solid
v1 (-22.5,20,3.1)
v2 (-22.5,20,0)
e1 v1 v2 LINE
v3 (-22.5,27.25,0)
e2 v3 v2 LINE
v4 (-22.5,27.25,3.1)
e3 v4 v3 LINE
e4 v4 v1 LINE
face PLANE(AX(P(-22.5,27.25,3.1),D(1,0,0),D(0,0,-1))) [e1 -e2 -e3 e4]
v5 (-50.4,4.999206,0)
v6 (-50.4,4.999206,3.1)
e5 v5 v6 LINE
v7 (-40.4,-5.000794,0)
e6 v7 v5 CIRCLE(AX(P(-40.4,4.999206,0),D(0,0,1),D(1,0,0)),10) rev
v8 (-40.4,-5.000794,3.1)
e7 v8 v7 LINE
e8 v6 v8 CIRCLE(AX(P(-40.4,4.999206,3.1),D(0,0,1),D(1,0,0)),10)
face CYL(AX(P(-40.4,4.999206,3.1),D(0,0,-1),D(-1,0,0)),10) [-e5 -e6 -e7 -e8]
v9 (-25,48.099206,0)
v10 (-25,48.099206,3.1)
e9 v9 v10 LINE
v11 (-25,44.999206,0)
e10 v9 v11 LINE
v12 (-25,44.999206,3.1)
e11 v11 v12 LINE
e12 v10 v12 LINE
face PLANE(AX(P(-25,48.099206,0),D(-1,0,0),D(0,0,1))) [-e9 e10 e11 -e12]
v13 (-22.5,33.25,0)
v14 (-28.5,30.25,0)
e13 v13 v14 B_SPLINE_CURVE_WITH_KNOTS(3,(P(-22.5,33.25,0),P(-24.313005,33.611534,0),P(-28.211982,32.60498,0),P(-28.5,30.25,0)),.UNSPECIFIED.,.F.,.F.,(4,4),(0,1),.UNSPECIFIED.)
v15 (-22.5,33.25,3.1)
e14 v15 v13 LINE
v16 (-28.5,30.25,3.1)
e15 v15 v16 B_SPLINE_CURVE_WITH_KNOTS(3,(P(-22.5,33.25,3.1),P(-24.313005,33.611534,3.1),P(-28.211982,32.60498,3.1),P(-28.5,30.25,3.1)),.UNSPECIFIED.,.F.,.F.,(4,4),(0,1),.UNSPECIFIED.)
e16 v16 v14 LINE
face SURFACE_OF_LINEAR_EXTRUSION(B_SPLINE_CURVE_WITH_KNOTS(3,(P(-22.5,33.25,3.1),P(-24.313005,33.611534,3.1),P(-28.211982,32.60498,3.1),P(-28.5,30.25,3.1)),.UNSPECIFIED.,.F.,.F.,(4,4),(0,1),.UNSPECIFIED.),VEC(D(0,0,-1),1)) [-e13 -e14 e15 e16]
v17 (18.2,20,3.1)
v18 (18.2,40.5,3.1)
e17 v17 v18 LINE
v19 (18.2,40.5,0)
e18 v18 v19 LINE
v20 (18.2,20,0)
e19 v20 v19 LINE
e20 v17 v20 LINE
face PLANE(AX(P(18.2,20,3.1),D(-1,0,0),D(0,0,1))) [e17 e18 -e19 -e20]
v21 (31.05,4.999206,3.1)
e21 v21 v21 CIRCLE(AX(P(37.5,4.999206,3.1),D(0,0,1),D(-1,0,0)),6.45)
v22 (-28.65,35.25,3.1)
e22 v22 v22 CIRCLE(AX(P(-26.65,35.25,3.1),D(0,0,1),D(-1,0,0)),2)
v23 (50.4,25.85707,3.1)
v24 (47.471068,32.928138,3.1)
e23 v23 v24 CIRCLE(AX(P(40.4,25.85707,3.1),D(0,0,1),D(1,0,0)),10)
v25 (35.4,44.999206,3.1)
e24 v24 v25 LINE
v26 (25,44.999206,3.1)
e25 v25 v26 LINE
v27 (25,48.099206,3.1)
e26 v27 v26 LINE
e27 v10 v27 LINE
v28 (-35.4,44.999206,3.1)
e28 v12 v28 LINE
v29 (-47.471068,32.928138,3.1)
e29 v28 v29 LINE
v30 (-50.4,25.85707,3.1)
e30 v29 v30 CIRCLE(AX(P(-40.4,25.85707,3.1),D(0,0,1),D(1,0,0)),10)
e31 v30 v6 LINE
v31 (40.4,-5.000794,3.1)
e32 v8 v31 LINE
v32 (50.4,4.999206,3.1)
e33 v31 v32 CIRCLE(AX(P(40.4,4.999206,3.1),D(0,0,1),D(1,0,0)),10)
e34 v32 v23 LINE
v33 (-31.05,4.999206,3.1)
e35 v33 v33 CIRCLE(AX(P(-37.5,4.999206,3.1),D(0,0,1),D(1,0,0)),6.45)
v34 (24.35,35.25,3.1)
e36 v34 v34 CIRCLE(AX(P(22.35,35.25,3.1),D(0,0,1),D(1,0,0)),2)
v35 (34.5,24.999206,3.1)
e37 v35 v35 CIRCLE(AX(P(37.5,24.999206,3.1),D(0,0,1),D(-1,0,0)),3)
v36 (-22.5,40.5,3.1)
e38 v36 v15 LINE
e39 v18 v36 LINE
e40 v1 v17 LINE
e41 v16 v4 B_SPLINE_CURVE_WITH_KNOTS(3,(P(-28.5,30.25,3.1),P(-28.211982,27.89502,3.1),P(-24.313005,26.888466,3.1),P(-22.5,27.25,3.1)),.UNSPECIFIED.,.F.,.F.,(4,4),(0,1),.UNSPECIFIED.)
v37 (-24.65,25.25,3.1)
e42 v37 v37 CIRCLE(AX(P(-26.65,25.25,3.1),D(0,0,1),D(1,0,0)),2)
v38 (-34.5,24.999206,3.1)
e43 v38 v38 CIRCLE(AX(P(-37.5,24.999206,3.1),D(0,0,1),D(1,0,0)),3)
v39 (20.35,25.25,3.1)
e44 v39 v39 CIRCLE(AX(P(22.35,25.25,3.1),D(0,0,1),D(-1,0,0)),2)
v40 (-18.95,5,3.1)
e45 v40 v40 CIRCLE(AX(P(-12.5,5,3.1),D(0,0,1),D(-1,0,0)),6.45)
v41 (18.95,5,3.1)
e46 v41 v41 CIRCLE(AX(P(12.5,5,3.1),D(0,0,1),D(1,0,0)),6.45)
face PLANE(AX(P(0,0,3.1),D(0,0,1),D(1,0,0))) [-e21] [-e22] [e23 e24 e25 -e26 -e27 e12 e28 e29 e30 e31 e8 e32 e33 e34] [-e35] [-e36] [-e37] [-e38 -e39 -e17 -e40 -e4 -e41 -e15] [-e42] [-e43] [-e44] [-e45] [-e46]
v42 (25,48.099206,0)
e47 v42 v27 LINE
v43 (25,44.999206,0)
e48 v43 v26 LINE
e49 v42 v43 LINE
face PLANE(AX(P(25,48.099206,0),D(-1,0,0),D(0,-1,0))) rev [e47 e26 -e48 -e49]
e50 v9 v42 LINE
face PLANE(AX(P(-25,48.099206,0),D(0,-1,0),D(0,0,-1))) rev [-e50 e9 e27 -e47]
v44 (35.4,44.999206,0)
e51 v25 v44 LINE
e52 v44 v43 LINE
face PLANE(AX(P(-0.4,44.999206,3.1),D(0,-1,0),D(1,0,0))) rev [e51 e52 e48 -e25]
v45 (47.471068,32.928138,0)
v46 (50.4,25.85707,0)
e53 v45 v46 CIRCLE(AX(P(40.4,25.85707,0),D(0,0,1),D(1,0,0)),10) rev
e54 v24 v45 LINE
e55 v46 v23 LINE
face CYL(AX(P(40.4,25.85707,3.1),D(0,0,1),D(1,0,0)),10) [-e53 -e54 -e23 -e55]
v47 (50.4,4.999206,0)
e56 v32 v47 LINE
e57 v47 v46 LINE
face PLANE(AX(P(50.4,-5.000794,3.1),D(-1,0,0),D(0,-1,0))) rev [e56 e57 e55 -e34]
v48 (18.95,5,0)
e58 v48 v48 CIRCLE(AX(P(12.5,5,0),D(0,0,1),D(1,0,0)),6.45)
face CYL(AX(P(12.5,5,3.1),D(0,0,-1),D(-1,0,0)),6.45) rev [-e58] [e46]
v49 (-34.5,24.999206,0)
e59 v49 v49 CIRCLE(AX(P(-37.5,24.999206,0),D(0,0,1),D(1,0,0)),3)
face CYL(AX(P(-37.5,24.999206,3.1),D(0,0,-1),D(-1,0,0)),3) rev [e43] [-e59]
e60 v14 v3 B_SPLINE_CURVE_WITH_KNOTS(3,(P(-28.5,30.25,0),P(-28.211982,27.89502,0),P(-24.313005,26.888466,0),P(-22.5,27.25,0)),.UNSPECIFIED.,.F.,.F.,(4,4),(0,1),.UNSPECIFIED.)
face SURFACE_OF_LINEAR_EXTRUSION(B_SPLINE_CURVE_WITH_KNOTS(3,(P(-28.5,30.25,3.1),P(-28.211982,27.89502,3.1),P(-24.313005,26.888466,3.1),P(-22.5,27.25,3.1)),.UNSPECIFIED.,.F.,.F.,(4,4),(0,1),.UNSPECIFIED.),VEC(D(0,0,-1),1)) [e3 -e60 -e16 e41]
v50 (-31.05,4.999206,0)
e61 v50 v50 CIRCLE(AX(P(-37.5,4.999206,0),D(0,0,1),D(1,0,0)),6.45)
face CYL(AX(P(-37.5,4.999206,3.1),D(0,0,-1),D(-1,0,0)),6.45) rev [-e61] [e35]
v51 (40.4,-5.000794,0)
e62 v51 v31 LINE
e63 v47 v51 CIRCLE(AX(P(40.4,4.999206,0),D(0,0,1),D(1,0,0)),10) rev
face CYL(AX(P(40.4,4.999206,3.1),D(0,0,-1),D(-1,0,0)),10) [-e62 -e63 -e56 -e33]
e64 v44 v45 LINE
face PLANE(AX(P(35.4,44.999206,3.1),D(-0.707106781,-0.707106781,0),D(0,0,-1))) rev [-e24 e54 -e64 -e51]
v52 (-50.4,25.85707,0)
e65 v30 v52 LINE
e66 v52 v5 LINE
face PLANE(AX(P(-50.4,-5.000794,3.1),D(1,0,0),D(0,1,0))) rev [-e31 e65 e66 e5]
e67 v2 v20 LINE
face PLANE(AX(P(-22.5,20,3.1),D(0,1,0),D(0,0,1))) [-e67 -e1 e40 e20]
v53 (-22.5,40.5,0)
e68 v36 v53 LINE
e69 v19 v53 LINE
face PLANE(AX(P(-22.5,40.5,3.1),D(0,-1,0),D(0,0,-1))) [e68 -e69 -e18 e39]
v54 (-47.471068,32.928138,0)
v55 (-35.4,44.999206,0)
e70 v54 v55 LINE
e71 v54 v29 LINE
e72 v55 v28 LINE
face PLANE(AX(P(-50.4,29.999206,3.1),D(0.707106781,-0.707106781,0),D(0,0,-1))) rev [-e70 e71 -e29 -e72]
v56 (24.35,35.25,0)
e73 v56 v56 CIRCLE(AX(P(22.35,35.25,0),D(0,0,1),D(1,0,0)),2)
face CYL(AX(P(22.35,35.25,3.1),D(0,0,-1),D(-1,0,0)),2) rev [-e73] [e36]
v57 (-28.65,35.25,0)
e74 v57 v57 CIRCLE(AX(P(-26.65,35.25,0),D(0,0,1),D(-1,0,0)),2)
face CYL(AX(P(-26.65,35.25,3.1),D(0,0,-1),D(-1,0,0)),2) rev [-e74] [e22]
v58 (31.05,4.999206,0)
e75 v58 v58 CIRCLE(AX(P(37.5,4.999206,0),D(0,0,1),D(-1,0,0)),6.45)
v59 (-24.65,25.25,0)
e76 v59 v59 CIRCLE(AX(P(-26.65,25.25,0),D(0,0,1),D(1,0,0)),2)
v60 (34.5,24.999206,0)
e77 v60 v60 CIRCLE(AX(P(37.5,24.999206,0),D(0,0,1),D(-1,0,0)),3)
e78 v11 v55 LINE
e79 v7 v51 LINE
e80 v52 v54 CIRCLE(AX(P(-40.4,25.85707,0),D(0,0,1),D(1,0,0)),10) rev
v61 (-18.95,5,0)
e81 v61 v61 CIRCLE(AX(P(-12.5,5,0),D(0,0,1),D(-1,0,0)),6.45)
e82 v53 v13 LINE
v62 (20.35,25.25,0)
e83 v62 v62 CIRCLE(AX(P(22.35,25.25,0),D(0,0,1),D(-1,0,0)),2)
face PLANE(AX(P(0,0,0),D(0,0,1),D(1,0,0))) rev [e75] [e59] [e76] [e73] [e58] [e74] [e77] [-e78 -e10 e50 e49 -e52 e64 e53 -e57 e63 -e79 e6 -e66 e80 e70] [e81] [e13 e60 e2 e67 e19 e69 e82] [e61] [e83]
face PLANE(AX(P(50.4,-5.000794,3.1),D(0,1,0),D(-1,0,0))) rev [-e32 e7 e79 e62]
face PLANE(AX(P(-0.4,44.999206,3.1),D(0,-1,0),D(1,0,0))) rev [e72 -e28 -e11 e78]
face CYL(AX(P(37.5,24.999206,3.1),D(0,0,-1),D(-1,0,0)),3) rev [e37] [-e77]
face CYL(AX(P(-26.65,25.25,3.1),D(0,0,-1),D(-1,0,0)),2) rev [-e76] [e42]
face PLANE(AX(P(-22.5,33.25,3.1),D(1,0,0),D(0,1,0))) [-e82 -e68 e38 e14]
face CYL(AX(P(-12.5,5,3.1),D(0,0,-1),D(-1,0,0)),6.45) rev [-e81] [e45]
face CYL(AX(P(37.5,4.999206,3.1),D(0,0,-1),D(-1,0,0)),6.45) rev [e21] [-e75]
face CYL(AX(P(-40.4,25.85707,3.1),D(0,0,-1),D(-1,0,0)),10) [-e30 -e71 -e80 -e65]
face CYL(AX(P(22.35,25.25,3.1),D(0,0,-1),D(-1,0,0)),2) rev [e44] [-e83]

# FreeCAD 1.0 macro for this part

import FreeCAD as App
import Part
import Sketcher
from FreeCAD import Vector


def edges_at(feature, points):
    """Names of the edges that pass closest to the given points."""
    edges = feature.Shape.Edges
    near = lambda p: min(range(len(edges)), key=lambda i: edges[i].distToShape(Part.Vertex(*p))[0])
    return sorted({f"Edge{near(p) + 1}" for p in points})


def add_polygon(sketch, points):
    """Adds a closed chain of lines whose ends are joined by coincident constraints."""
    first, n = sketch.GeometryCount, len(points)
    for a, b in zip(points, points[1:] + points[:1]):
        sketch.addGeometry(Part.LineSegment(App.Vector(*a, 0), App.Vector(*b, 0)), False)
    for i in range(n):
        sketch.addConstraint(Sketcher.Constraint("Coincident", first + i, 2, first + (i + 1) % n, 1))

doc = App.newDocument("Part")
body = doc.addObject("PartDesign::Body", "Body")

sketch1 = doc.addObject("Sketcher::SketchObject", "Sketch")
body.addObject(sketch1)
sketch1.AttachmentSupport = (doc.XY_Plane, [""])
sketch1.MapMode = "FlatFace"
add_polygon(sketch1, [(-50, -5), (50, -5), (50, 45), (-50, 45)])
sketch1.addGeometry(Part.Circle(Vector(37, 5, 0), Vector(0, 0, 1), 6), False)
sketch1.addGeometry(Part.Circle(Vector(-37, 5, 0), Vector(0, 0, 1), 6), False)
sketch1.addGeometry(Part.Circle(Vector(12, 5, 0), Vector(0, 0, 1), 6), False)
sketch1.addGeometry(Part.Circle(Vector(-12, 5, 0), Vector(0, 0, 1), 6), False)
sketch1.addConstraint(Sketcher.Constraint("Horizontal", 0))
sketch1.addConstraint(Sketcher.Constraint("Vertical", 1))
sketch1.addConstraint(Sketcher.Constraint("Horizontal", 2))
sketch1.addConstraint(Sketcher.Constraint("Vertical", 3))
sketch1.addConstraint(Sketcher.Constraint("Equal", 4, 5))
sketch1.addConstraint(Sketcher.Constraint("Equal", 5, 6))
sketch1.addConstraint(Sketcher.Constraint("Equal", 6, 7))
sketch1.addConstraint(Sketcher.Constraint("Symmetric", 4, 3, 5, 3, -2))
sketch1.addConstraint(Sketcher.Constraint("Symmetric", 6, 3, 7, 3, -2))
sketch1.addConstraint(Sketcher.Constraint("Diameter", 4, 12.9))
sketch1.addConstraint(Sketcher.Constraint("DistanceY", 1, 1, 1, 2, 50.0))
sketch1.addConstraint(Sketcher.Constraint("DistanceX", 0, 1, 0, 2, 100.8))
sketch1.addConstraint(Sketcher.Constraint("DistanceY", -1, 1, 6, 3, 5.0))
sketch1.addConstraint(Sketcher.Constraint("DistanceX", 5, 3, 4, 3, 75.0))
sketch1.addConstraint(Sketcher.Constraint("DistanceX", 6, 3, 4, 3, 25.0))
sketch1.addConstraint(Sketcher.Constraint("DistanceY", 0, 2, 4, 3, 10.0))
sketch1.addConstraint(Sketcher.Constraint("DistanceX", -1, 1, 0, 2, 50.4))
sketch1.addConstraint(Sketcher.Constraint("DistanceY", -1, 1, 4, 3, 4.999206))
pad1 = doc.addObject("PartDesign::Pad", "Pad")
body.addObject(pad1)
pad1.Profile = sketch1
pad1.Length = 3.1

sketch2 = doc.addObject("Sketcher::SketchObject", "Sketch001")
body.addObject(sketch2)
sketch2.AttachmentSupport = (doc.XY_Plane, [""])
sketch2.MapMode = "FlatFace"
sketch2.addGeometry(Part.Circle(Vector(22.35, 35.25, 0), Vector(0, 0, 1), 2), False)
sketch2.addGeometry(Part.Circle(Vector(22.35, 25.25, 0), Vector(0, 0, 1), 2), False)
sketch2.addGeometry(Part.Circle(Vector(-26.65, 25.25, 0), Vector(0, 0, 1), 2), False)
sketch2.addGeometry(Part.Circle(Vector(-26.65, 35.25, 0), Vector(0, 0, 1), 2), False)
sketch2.addGeometry(Part.Circle(Vector(37.5, 24.999206, 0), Vector(0, 0, 1), 3), False)
sketch2.addGeometry(Part.Circle(Vector(-37.5, 24.999206, 0), Vector(0, 0, 1), 3), False)
sketch2.addGeometry(Part.LineSegment(Vector(-22.5, 20, 0), Vector(18.2, 20, 0)), False)
sketch2.addGeometry(Part.LineSegment(Vector(18.2, 20, 0), Vector(18.2, 40.5, 0)), False)
sketch2.addGeometry(Part.LineSegment(Vector(18.2, 40.5, 0), Vector(-22.5, 40.5, 0)), False)
sketch2.addGeometry(Part.LineSegment(Vector(-22.5, 40.5, 0), Vector(-22.5, 33.25, 0)), False)
sketch2.addGeometry(Part.BSplineCurve([Vector(-28.5, 30.25, 0), Vector(-28.211982, 32.60498, 0), Vector(-24.313005, 33.611534, 0), Vector(-22.5, 33.25, 0)], [4, 4], [0, 1], False, 3, [1, 1, 1, 1], False), False)
sketch2.addGeometry(Part.BSplineCurve([Vector(-28.5, 30.25, 0), Vector(-28.211982, 27.89502, 0), Vector(-24.313005, 26.888466, 0), Vector(-22.5, 27.25, 0)], [4, 4], [0, 1], False, 3, [1, 1, 1, 1], False), False)
sketch2.addGeometry(Part.LineSegment(Vector(-22.5, 27.25, 0), Vector(-22.5, 20, 0)), False)
sketch2.addConstraint(Sketcher.Constraint("Block", 10))
sketch2.addConstraint(Sketcher.Constraint("Block", 11))
sketch2.addConstraint(Sketcher.Constraint("Coincident", 6, 2, 7, 1))
sketch2.addConstraint(Sketcher.Constraint("Coincident", 7, 2, 8, 1))
sketch2.addConstraint(Sketcher.Constraint("Coincident", 8, 2, 9, 1))
sketch2.addConstraint(Sketcher.Constraint("Coincident", 9, 2, 10, 2))
sketch2.addConstraint(Sketcher.Constraint("Coincident", 11, 2, 12, 1))
sketch2.addConstraint(Sketcher.Constraint("Coincident", 12, 2, 6, 1))
sketch2.addConstraint(Sketcher.Constraint("Horizontal", 6))
sketch2.addConstraint(Sketcher.Constraint("Vertical", 7))
sketch2.addConstraint(Sketcher.Constraint("Horizontal", 8))
sketch2.addConstraint(Sketcher.Constraint("Vertical", 9))
sketch2.addConstraint(Sketcher.Constraint("Vertical", 12))
sketch2.addConstraint(Sketcher.Constraint("Equal", 0, 1))
sketch2.addConstraint(Sketcher.Constraint("Equal", 1, 2))
sketch2.addConstraint(Sketcher.Constraint("Equal", 2, 3))
sketch2.addConstraint(Sketcher.Constraint("Equal", 4, 5))
sketch2.addConstraint(Sketcher.Constraint("Symmetric", 4, 3, 5, 3, -2))
sketch2.addConstraint(Sketcher.Constraint("Horizontal", 1, 3, 2, 3))
sketch2.addConstraint(Sketcher.Constraint("Horizontal", 0, 3, 3, 3))
sketch2.addConstraint(Sketcher.Constraint("Vertical", 0, 3, 1, 3))
sketch2.addConstraint(Sketcher.Constraint("Vertical", 2, 3, 3, 3))
sketch2.addConstraint(Sketcher.Constraint("Equal", 9, 12))
sketch2.addConstraint(Sketcher.Constraint("Diameter", 0, 4.0))
sketch2.addConstraint(Sketcher.Constraint("Diameter", 4, 6.0))
sketch2.addConstraint(Sketcher.Constraint("DistanceX", 6, 1, 6, 2, 40.7))
sketch2.addConstraint(Sketcher.Constraint("DistanceY", 7, 1, 7, 2, 20.5))
sketch2.addConstraint(Sketcher.Constraint("DistanceY", 1, 3, 0, 3, 10.0))
sketch2.addConstraint(Sketcher.Constraint("DistanceX", 2, 3, 1, 3, 49.0))
sketch2.addConstraint(Sketcher.Constraint("DistanceX", 5, 3, 4, 3, 75.0))
sketch2.addConstraint(Sketcher.Constraint("DistanceY", 9, 2, 3, 3, 2.0))
sketch2.addConstraint(Sketcher.Constraint("DistanceX", -1, 1, 0, 3, 22.35))
sketch2.addConstraint(Sketcher.Constraint("DistanceY", -1, 1, 4, 3, 24.999206))
pocket1 = doc.addObject("PartDesign::Pocket", "Pocket")
body.addObject(pocket1)
pocket1.Profile = sketch2
pocket1.Type = "ThroughAll"
pocket1.Reversed = True
doc.recompute()

fillet = doc.addObject("PartDesign::Fillet", "Fillet")
body.addObject(fillet)
fillet.Base = (pocket1, edges_at(pocket1, [(50.4, -5.001, 1.55), (-50.4, -5.001, 1.55)]))
fillet.Radius = 10

sketch3 = doc.addObject("Sketcher::SketchObject", "Sketch002")
body.addObject(sketch3)
sketch3.AttachmentSupport = (doc.XY_Plane, [""])
sketch3.MapMode = "FlatFace"
sketch3.AttachmentOffset = App.Placement(Vector(0, 0, 3.1), App.Rotation())
add_polygon(sketch3, [(-25, 48.1), (-25, 45), (25, 45), (25, 48.1)])
sketch3.addConstraint(Sketcher.Constraint("Vertical", 0))
sketch3.addConstraint(Sketcher.Constraint("Horizontal", 1))
sketch3.addConstraint(Sketcher.Constraint("Vertical", 2))
sketch3.addConstraint(Sketcher.Constraint("Horizontal", 3))
sketch3.addConstraint(Sketcher.Constraint("DistanceX", 1, 1, 1, 2, 50.0))
sketch3.addConstraint(Sketcher.Constraint("DistanceY", 0, 2, 0, 1, 3.1))
sketch3.addConstraint(Sketcher.Constraint("DistanceX", 0, 2, -1, 1, 25.0))
sketch3.addConstraint(Sketcher.Constraint("DistanceY", -1, 1, 0, 2, 44.999206))
pad2 = doc.addObject("PartDesign::Pad", "Pad001")
body.addObject(pad2)
pad2.Profile = sketch3
pad2.Length = 3.1
pad2.Reversed = True
doc.recompute()

chamfer = doc.addObject("PartDesign::Chamfer", "Chamfer")
body.addObject(chamfer)
chamfer.Base = (pad2, edges_at(pad2, [(50.4, 44.999, 1.55), (-50.4, 44.999, 1.55)]))
chamfer.Size = 15
doc.recompute()

fillet2 = doc.addObject("PartDesign::Fillet", "Fillet001")
body.addObject(fillet2)
fillet2.Base = (chamfer, edges_at(chamfer, [(-50.4, 29.999, 1.55), (50.4, 29.999, 1.55)]))
fillet2.Radius = 10

doc.recompute()
